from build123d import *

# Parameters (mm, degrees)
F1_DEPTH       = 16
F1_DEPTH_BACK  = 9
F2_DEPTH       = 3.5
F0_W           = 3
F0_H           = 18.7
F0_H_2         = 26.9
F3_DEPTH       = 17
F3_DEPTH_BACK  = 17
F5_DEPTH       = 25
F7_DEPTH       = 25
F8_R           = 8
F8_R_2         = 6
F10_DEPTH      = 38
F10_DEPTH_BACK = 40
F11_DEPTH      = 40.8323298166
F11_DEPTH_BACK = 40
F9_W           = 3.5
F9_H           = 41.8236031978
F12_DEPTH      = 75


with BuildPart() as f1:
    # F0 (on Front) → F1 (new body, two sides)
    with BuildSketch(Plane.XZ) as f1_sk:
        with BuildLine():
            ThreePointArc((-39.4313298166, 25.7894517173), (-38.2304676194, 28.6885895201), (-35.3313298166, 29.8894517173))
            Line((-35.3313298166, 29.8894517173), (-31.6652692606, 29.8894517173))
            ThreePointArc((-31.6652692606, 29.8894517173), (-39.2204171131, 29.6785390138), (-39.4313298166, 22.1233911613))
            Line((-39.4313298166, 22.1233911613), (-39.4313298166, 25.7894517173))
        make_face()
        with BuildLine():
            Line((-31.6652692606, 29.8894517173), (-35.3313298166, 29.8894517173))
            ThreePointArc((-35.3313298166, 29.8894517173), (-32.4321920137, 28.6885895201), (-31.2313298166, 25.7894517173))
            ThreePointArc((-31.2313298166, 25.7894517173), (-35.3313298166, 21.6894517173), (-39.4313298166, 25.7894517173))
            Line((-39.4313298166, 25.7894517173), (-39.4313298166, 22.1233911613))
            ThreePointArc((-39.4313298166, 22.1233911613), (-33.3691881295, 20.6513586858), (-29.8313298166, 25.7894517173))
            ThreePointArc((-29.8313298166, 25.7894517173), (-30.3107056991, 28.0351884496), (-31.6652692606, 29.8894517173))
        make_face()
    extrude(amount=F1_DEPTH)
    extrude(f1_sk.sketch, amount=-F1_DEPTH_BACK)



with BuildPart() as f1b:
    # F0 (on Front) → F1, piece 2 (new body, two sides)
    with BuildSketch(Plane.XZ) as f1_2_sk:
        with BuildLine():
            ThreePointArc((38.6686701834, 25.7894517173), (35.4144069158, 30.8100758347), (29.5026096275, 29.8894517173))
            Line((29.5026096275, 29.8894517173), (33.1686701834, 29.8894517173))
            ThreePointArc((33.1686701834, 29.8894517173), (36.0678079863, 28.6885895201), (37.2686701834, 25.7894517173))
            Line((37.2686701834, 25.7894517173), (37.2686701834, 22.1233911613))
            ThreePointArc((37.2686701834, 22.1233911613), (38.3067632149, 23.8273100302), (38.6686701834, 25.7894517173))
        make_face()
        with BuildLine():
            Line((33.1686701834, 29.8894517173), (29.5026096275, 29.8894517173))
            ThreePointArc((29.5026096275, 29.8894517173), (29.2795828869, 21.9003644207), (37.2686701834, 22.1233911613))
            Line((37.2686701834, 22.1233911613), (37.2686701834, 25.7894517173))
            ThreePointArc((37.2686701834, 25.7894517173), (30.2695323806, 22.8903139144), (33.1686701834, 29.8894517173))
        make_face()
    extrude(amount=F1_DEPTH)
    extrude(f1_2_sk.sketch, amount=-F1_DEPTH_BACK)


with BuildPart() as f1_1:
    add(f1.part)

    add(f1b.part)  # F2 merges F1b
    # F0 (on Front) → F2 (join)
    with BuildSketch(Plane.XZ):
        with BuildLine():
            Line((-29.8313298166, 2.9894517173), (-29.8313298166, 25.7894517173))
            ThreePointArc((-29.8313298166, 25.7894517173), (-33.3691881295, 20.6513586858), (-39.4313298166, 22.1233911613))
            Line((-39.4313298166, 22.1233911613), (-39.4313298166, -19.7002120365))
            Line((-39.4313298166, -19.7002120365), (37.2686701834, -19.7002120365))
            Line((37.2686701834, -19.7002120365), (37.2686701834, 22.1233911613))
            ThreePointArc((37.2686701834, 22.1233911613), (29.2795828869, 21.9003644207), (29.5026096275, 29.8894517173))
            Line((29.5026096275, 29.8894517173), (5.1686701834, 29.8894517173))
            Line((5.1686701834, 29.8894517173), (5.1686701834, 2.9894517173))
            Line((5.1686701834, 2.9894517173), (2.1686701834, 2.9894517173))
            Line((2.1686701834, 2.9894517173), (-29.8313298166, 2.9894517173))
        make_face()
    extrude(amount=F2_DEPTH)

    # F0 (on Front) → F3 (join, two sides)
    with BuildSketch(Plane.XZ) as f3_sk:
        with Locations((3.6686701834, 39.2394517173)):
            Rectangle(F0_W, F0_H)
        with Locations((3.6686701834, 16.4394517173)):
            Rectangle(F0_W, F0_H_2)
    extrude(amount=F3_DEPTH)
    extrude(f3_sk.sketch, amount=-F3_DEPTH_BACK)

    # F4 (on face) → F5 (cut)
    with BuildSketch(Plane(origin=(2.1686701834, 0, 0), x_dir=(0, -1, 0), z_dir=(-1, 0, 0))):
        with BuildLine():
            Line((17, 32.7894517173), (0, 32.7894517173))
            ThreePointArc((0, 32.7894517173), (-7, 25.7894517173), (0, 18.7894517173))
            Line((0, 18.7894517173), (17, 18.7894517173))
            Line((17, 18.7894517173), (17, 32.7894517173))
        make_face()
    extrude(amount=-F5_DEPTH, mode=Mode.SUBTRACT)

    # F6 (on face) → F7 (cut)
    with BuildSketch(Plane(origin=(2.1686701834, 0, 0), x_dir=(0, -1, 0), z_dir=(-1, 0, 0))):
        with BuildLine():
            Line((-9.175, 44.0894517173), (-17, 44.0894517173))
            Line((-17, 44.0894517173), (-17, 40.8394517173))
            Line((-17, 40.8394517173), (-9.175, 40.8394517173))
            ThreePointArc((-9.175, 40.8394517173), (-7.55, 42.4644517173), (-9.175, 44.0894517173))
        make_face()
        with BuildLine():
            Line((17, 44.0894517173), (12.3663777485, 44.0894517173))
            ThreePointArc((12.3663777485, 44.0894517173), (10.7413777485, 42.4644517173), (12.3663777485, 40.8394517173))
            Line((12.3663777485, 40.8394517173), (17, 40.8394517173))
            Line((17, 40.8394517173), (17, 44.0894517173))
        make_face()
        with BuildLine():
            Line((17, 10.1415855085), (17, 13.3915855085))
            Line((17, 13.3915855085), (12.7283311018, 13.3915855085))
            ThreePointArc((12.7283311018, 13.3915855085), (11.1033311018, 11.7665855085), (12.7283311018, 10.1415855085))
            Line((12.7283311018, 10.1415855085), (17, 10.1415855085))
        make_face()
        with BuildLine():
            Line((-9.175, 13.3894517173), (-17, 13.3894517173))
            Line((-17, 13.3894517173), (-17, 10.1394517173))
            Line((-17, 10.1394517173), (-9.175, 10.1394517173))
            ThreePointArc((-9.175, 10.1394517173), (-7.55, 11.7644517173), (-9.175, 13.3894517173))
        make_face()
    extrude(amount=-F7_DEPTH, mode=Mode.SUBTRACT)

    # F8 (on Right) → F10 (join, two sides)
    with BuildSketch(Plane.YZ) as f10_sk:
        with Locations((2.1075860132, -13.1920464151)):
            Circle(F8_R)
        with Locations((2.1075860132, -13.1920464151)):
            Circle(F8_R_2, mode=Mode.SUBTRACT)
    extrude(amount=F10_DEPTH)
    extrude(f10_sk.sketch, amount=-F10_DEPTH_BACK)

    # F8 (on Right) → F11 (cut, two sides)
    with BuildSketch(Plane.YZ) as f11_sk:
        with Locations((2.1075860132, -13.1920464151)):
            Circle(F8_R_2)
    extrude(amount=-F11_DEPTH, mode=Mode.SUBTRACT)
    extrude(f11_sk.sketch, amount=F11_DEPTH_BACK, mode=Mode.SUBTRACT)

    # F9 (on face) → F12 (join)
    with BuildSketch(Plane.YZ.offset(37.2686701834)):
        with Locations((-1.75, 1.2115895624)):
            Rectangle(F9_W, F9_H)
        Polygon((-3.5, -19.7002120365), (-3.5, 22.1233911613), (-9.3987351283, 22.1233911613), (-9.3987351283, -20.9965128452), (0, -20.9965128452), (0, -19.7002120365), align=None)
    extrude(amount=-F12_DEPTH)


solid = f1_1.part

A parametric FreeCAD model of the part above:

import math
import FreeCAD as App
import Part
import Sketcher

V = App.Vector
Q = App.Units.Quantity

doc = App.newDocument("Part")
body = doc.addObject("PartDesign::Body", "Body")

# Sketch on XZ plane
sketch1 = doc.addObject("Sketcher::SketchObject", "Sketch")
body.addObject(sketch1)
sketch1.AttachmentSupport = (doc.XZ_Plane, [""])
sketch1.MapMode = "FlatFace"
sketch1.addGeometry([
    Part.ArcOfCircle(Part.Circle(V(-35.3, 25.8, 0), V(0, 0, 1), 5.5), math.radians(48), math.radians(222)),  # 0
    Part.ArcOfCircle(Part.Circle(V(-35.3, 25.8, 0), V(0, 0, 1), 5.5), math.radians(-138), math.radians(0)),  # 1
    Part.ArcOfCircle(Part.Circle(V(-35.3, 25.8, 0), V(0, 0, 1), 5.5), math.radians(0), math.radians(48)),  # 2
    Part.ArcOfCircle(Part.Circle(V(-35.3, 25.8, 0), V(0, 0, 1), 4.1), math.radians(90), math.radians(180)),  # 3
    Part.ArcOfCircle(Part.Circle(V(-35.3, 25.8, 0), V(0, 0, 1), 4.1), math.radians(0), math.radians(90)),  # 4
    Part.ArcOfCircle(Part.Circle(V(-35.3, 25.8, 0), V(0, 0, 1), 4.1), math.radians(180), math.radians(360)),  # 5
], False)
sketch1.addConstraint([
    Sketcher.Constraint("Tangent", 0, 2, 1, 1),
    Sketcher.Constraint("Tangent", 1, 2, 2, 1),
    Sketcher.Constraint("Tangent", 2, 2, 0, 1),
    Sketcher.Constraint("Tangent", 3, 1, 4, 2),
    Sketcher.Constraint("Tangent", 4, 1, 5, 2),
    Sketcher.Constraint("Tangent", 5, 1, 3, 2),
    Sketcher.Constraint("Coincident", 3, 3, 0, 3),
    Sketcher.Constraint("Horizontal", 5, 3, 1, 2),
    Sketcher.Constraint("Horizontal", 2, 2, 3, 1),
    Sketcher.Constraint("Horizontal", 1, 2, 4, 1),
    Sketcher.Constraint("Horizontal", 4, 1, 5, 1),
    Sketcher.Constraint("Vertical", 5, 3, 3, 1),
    Sketcher.Constraint("Vertical", 0, 2, 5, 1),
    Sketcher.Constraint("Radius", 0, Q("5.5 mm")),
    Sketcher.Constraint("Radius", 3, Q("4.1 mm")),
    Sketcher.Constraint("DistanceX", 0, 3, -1, 1, Q("35.33133 mm")),
    Sketcher.Constraint("DistanceY", -1, 1, 0, 3, Q("25.789452 mm")),
])
pad1 = doc.addObject("PartDesign::Pad", "Pad")
body.addObject(pad1)
pad1.Profile = sketch1
pad1.Type = "TwoLengths"
pad1.Length = 16
pad1.Length2 = 9
body2 = doc.addObject("PartDesign::Body", "Body001")

# Sketch on XZ plane
sketch2 = doc.addObject("Sketcher::SketchObject", "Sketch001")
body2.addObject(sketch2)
sketch2.AttachmentSupport = (doc.getObject("XZ_Plane001"), [""])
sketch2.MapMode = "FlatFace"
sketch2.addGeometry([
    Part.ArcOfCircle(Part.Circle(V(33.2, 25.8, 0), V(0, 0, 1), 5.5), math.radians(0), math.radians(132)),  # 0
    Part.ArcOfCircle(Part.Circle(V(33.2, 25.8, 0), V(0, 0, 1), 5.5), math.radians(132), math.radians(318)),  # 1
    Part.ArcOfCircle(Part.Circle(V(33.2, 25.8, 0), V(0, 0, 1), 5.5), math.radians(-42), math.radians(0)),  # 2
    Part.ArcOfCircle(Part.Circle(V(33.2, 25.8, 0), V(0, 0, 1), 4.1), math.radians(0), math.radians(90)),  # 3
    Part.ArcOfCircle(Part.Circle(V(33.2, 25.8, 0), V(0, 0, 1), 4.1), math.radians(90), math.radians(360)),  # 4
], False)
sketch2.addConstraint([
    Sketcher.Constraint("Tangent", 0, 2, 1, 1),
    Sketcher.Constraint("Tangent", 1, 2, 2, 1),
    Sketcher.Constraint("Tangent", 2, 2, 0, 1),
    Sketcher.Constraint("Tangent", 3, 1, 4, 2),
    Sketcher.Constraint("Coincident", 4, 1, 3, 2),
    Sketcher.Constraint("Coincident", 3, 3, 0, 3),
    Sketcher.Constraint("Horizontal", 4, 3, 2, 2),
    Sketcher.Constraint("Horizontal", 2, 2, 3, 1),
    Sketcher.Constraint("Horizontal", 0, 2, 4, 1),
    Sketcher.Constraint("Vertical", 1, 2, 3, 1),
    Sketcher.Constraint("Vertical", 3, 3, 4, 1),
    Sketcher.Constraint("Radius", 0, Q("5.5 mm")),
    Sketcher.Constraint("Radius", 3, Q("4.1 mm")),
    Sketcher.Constraint("DistanceX", -1, 1, 0, 3, Q("33.16867 mm")),
    Sketcher.Constraint("DistanceY", -1, 1, 0, 3, Q("25.789452 mm")),
])
pad2 = doc.addObject("PartDesign::Pad", "Pad001")
body2.addObject(pad2)
pad2.Profile = sketch2
pad2.Type = "TwoLengths"
pad2.Length = 16
pad2.Length2 = 9
body.AllowCompound = True
doc.recompute()

boolean = doc.addObject("PartDesign::Boolean", "Boolean")
body.addObject(boolean)
boolean.Type = "Fuse"
boolean.addObjects([body2])

# Sketch on XZ plane
sketch3 = doc.addObject("Sketcher::SketchObject", "Sketch002")
body.addObject(sketch3)
sketch3.AttachmentSupport = (doc.XZ_Plane, [""])
sketch3.MapMode = "FlatFace"
sketch3.addGeometry([
    Part.LineSegment(V(-30, 3, 0), V(-30, 26, 0)),  # 0
    Part.ArcOfCircle(Part.Circle(V(-35, 26, 0), V(0, 0, 1), 6), math.radians(-138), math.radians(0)),  # 1
    Part.LineSegment(V(-39, 22, 0), V(-39, -20, 0)),  # 2
    Part.LineSegment(V(-39, -20, 0), V(37, -20, 0)),  # 3
    Part.LineSegment(V(37, -20, 0), V(37, 22, 0)),  # 4
    Part.ArcOfCircle(Part.Circle(V(33, 26, 0), V(0, 0, 1), 6), math.radians(132), math.radians(318)),  # 5
    Part.LineSegment(V(30, 30, 0), V(5, 30, 0)),  # 6
    Part.LineSegment(V(5, 30, 0), V(5, 3, 0)),  # 7
    Part.LineSegment(V(5, 3, 0), V(-30, 3, 0)),  # 8
], False)
sketch3.addConstraint([
    Sketcher.Constraint("Tangent", 0, 2, 1, 2),
    Sketcher.Constraint("Coincident", 1, 1, 2, 1),
    Sketcher.Constraint("Coincident", 2, 2, 3, 1),
    Sketcher.Constraint("Coincident", 3, 2, 4, 1),
    Sketcher.Constraint("Coincident", 4, 2, 5, 2),
    Sketcher.Constraint("Coincident", 5, 1, 6, 1),
    Sketcher.Constraint("Coincident", 6, 2, 7, 1),
    Sketcher.Constraint("Coincident", 7, 2, 8, 1),
    Sketcher.Constraint("Coincident", 8, 2, 0, 1),
    Sketcher.Constraint("Vertical", 0),
    Sketcher.Constraint("Vertical", 2),
    Sketcher.Constraint("Horizontal", 3),
    Sketcher.Constraint("Vertical", 4),
    Sketcher.Constraint("Horizontal", 6),
    Sketcher.Constraint("Vertical", 7),
    Sketcher.Constraint("Horizontal", 8),
    Sketcher.Constraint("Equal", 1, 5),
    Sketcher.Constraint("Horizontal", 1, 3, 5, 3),
    Sketcher.Constraint("Horizontal", 1, 1, 4, 2),
    Sketcher.Constraint("Radius", 1, Q("5.5 mm")),
    Sketcher.Constraint("DistanceX", 8, 2, 8, 1, Q("35 mm")),
    Sketcher.Constraint("DistanceX", 3, 1, 3, 2, Q("76.7 mm")),
    Sketcher.Constraint("DistanceY", 0, 1, 0, 2, Q("22.8 mm")),
    Sketcher.Constraint("DistanceY", 7, 2, 7, 1, Q("26.9 mm")),
    Sketcher.Constraint("DistanceX", 0, 2, 5, 3, Q("63 mm")),
    Sketcher.Constraint("DistanceY", 2, 2, 2, 1, Q("41.823603 mm")),
    Sketcher.Constraint("DistanceX", 1, 3, -1, 1, Q("35.33133 mm")),
    Sketcher.Constraint("DistanceY", -1, 1, 1, 3, Q("25.789452 mm")),
])
pad3 = doc.addObject("PartDesign::Pad", "Pad002")
body.addObject(pad3)
pad3.Profile = sketch3
pad3.Length = 3.5

# Sketch on XZ plane
sketch4 = doc.addObject("Sketcher::SketchObject", "Sketch003")
body.addObject(sketch4)
sketch4.AttachmentSupport = (doc.XZ_Plane, [""])
sketch4.MapMode = "FlatFace"
sketch4.addGeometry([
    Part.LineSegment(V(2.2, 48.6, 0), V(2.2, 3, 0)),
    Part.LineSegment(V(2.2, 3, 0), V(5.2, 3, 0)),
    Part.LineSegment(V(5.2, 3, 0), V(5.2, 48.6, 0)),
    Part.LineSegment(V(5.2, 48.6, 0), V(2.2, 48.6, 0)),
], False)
sketch4.addConstraint([
    Sketcher.Constraint("Coincident", 0, 2, 1, 1),
    Sketcher.Constraint("Coincident", 1, 2, 2, 1),
    Sketcher.Constraint("Coincident", 2, 2, 3, 1),
    Sketcher.Constraint("Coincident", 3, 2, 0, 1),
    Sketcher.Constraint("Vertical", 0),
    Sketcher.Constraint("Horizontal", 1),
    Sketcher.Constraint("Vertical", 2),
    Sketcher.Constraint("Horizontal", 3),
    Sketcher.Constraint("DistanceX", 1, 1, 1, 2, Q("3 mm")),
    Sketcher.Constraint("DistanceY", 0, 2, 0, 1, Q("45.6 mm")),
    Sketcher.Constraint("DistanceX", -1, 1, 0, 2, Q("2.16867 mm")),
    Sketcher.Constraint("DistanceY", -1, 1, 0, 2, Q("2.989452 mm")),
])
pad4 = doc.addObject("PartDesign::Pad", "Pad003")
body.addObject(pad4)
pad4.Profile = sketch4
pad4.Type = "TwoLengths"
pad4.Length = 17
pad4.Length2 = 17

# Sketch on YZ plane
sketch5 = doc.addObject("Sketcher::SketchObject", "Sketch004")
body.addObject(sketch5)
sketch5.AttachmentSupport = (doc.YZ_Plane, [""])
sketch5.MapMode = "FlatFace"
sketch5.AttachmentOffset = App.Placement(V(0, 0, 2.16867), App.Rotation())
sketch5.addGeometry([
    Part.LineSegment(V(-17, 33, 0), V(0, 33, 0)),
    Part.ArcOfCircle(Part.Circle(V(0, 26, 0), V(0, 0, 1), 7), math.radians(-90), math.radians(90)),
    Part.LineSegment(V(0, 19, 0), V(-17, 19, 0)),
    Part.LineSegment(V(-17, 19, 0), V(-17, 33, 0)),
], False)
sketch5.addConstraint([
    Sketcher.Constraint("Tangent", 0, 2, 1, 2),
    Sketcher.Constraint("Tangent", 1, 1, 2, 1),
    Sketcher.Constraint("Coincident", 2, 2, 3, 1),
    Sketcher.Constraint("Coincident", 3, 2, 0, 1),
    Sketcher.Constraint("Horizontal", 0),
    Sketcher.Constraint("Horizontal", 2),
    Sketcher.Constraint("Vertical", 3),
    Sketcher.Constraint("PointOnObject", 1, 3, -2),
    Sketcher.Constraint("Radius", 1, Q("7 mm")),
    Sketcher.Constraint("DistanceX", 0, 1, 0, 2, Q("17 mm")),
    Sketcher.Constraint("DistanceY", -1, 1, 1, 3, Q("25.789452 mm")),
])
pocket1 = doc.addObject("PartDesign::Pocket", "Pocket")
body.addObject(pocket1)
pocket1.Profile = sketch5
pocket1.Length = 25
pocket1.Reversed = True

# Sketch on YZ plane
sketch6 = doc.addObject("Sketcher::SketchObject", "Sketch005")
body.addObject(sketch6)
sketch6.AttachmentSupport = (doc.YZ_Plane, [""])
sketch6.MapMode = "FlatFace"
sketch6.AttachmentOffset = App.Placement(V(0, 0, 2.16867), App.Rotation())
sketch6.addGeometry([
    Part.LineSegment(V(9.2, 44.1, 0), V(17, 44.1, 0)),  # 0
    Part.LineSegment(V(17, 44.1, 0), V(17, 40.8, 0)),  # 1
    Part.LineSegment(V(17, 40.8, 0), V(9.2, 40.8, 0)),  # 2
    Part.ArcOfCircle(Part.Circle(V(9.2, 42.5, 0), V(0, 0, 1), 1.6), math.radians(90), math.radians(270)),  # 3
    Part.LineSegment(V(-17, 44.1, 0), V(-12.4, 44.1, 0)),  # 4
    Part.ArcOfCircle(Part.Circle(V(-12.4, 42.5, 0), V(0, 0, 1), 1.6), math.radians(-90), math.radians(90)),  # 5
    Part.LineSegment(V(-12.4, 40.8, 0), V(-17, 40.8, 0)),  # 6
    Part.LineSegment(V(-17, 40.8, 0), V(-17, 44.1, 0)),  # 7
    Part.LineSegment(V(-17, 10.1, 0), V(-17, 13.4, 0)),  # 8
    Part.LineSegment(V(-17, 13.4, 0), V(-12.7, 13.4, 0)),  # 9
    Part.ArcOfCircle(Part.Circle(V(-12.7, 11.8, 0), V(0, 0, 1), 1.6), math.radians(-90), math.radians(90)),  # 10
    Part.LineSegment(V(-12.7, 10.1, 0), V(-17, 10.1, 0)),  # 11
    Part.LineSegment(V(9.2, 13.4, 0), V(17, 13.4, 0)),  # 12
    Part.LineSegment(V(17, 13.4, 0), V(17, 10.1, 0)),  # 13
    Part.LineSegment(V(17, 10.1, 0), V(9.2, 10.1, 0)),  # 14
    Part.ArcOfCircle(Part.Circle(V(9.2, 11.8, 0), V(0, 0, 1), 1.6), math.radians(90), math.radians(270)),  # 15
], False)
sketch6.addConstraint([
    Sketcher.Constraint("Coincident", 0, 2, 1, 1),
    Sketcher.Constraint("Coincident", 1, 2, 2, 1),
    Sketcher.Constraint("Tangent", 2, 2, 3, 2),
    Sketcher.Constraint("Tangent", 3, 1, 0, 1),
    Sketcher.Constraint("Tangent", 4, 2, 5, 2),
    Sketcher.Constraint("Tangent", 5, 1, 6, 1),
    Sketcher.Constraint("Coincident", 6, 2, 7, 1),
    Sketcher.Constraint("Coincident", 7, 2, 4, 1),
    Sketcher.Constraint("Coincident", 8, 2, 9, 1),
    Sketcher.Constraint("Tangent", 9, 2, 10, 2),
    Sketcher.Constraint("Tangent", 10, 1, 11, 1),
    Sketcher.Constraint("Coincident", 11, 2, 8, 1),
    Sketcher.Constraint("Coincident", 12, 2, 13, 1),
    Sketcher.Constraint("Coincident", 13, 2, 14, 1),
    Sketcher.Constraint("Tangent", 14, 2, 15, 2),
    Sketcher.Constraint("Tangent", 15, 1, 12, 1),
    Sketcher.Constraint("Horizontal", 0),
    Sketcher.Constraint("Vertical", 1),
    Sketcher.Constraint("Horizontal", 2),
    Sketcher.Constraint("Horizontal", 4),
    Sketcher.Constraint("Horizontal", 6),
    Sketcher.Constraint("Vertical", 7),
    Sketcher.Constraint("Vertical", 8),
    Sketcher.Constraint("Horizontal", 9),
    Sketcher.Constraint("Horizontal", 11),
    Sketcher.Constraint("Horizontal", 12),
    Sketcher.Constraint("Vertical", 13),
    Sketcher.Constraint("Horizontal", 14),
    Sketcher.Constraint("Equal", 3, 5),
    Sketcher.Constraint("Equal", 5, 10),
    Sketcher.Constraint("Equal", 10, 15),
    Sketcher.Constraint("Symmetric", 1, 2, 6, 2, -2),
    Sketcher.Constraint("Vertical", 3, 3, 15, 3),
    Sketcher.Constraint("Vertical", 7, 2, 8, 2),
    Sketcher.Constraint("Vertical", 1, 2, 12, 2),
    Sketcher.Constraint("DistanceX", -1, 1, 0, 2, Q("17 mm")),
    Sketcher.Constraint("Radius", 3, Q("1.625 mm")),
    Sketcher.Constraint("DistanceY", 15, 3, 3, 3, Q("30.7 mm")),
    Sketcher.Constraint("DistanceX", 0, 1, 0, 2, Q("7.825 mm")),
    Sketcher.Constraint("DistanceX", 9, 1, 9, 2, Q("4.271669 mm")),
    Sketcher.Constraint("DistanceX", 4, 1, 4, 2, Q("4.633622 mm")),
    Sketcher.Constraint("DistanceY", -1, 1, 3, 3, Q("42.464452 mm")),
    Sketcher.Constraint("DistanceY", -1, 1, 10, 3, Q("11.766586 mm")),
])
pocket2 = doc.addObject("PartDesign::Pocket", "Pocket001")
body.addObject(pocket2)
pocket2.Profile = sketch6
pocket2.Length = 25
pocket2.Reversed = True

# Sketch on YZ plane
sketch7 = doc.addObject("Sketcher::SketchObject", "Sketch006")
body.addObject(sketch7)
sketch7.AttachmentSupport = (doc.YZ_Plane, [""])
sketch7.MapMode = "FlatFace"
sketch7.addGeometry([
    Part.Circle(V(2, -13, 0), V(0, 0, 1), 8),
    Part.Circle(V(2, -13, 0), V(0, 0, 1), 6),
], False)
sketch7.addConstraint([
    Sketcher.Constraint("Coincident", 1, 3, 0, 3),
    Sketcher.Constraint("Diameter", 0, Q("16 mm")),
    Sketcher.Constraint("Diameter", 1, Q("12 mm")),
    Sketcher.Constraint("DistanceX", -1, 1, 0, 3, Q("2.107586 mm")),
    Sketcher.Constraint("DistanceY", 0, 3, -1, 1, Q("13.192046 mm")),
])
pad5 = doc.addObject("PartDesign::Pad", "Pad004")
body.addObject(pad5)
pad5.Profile = sketch7
pad5.Type = "TwoLengths"
pad5.Length = 38
pad5.Length2 = 40

# Sketch on YZ plane
sketch8 = doc.addObject("Sketcher::SketchObject", "Sketch007")
body.addObject(sketch8)
sketch8.AttachmentSupport = (doc.YZ_Plane, [""])
sketch8.MapMode = "FlatFace"
sketch8.addGeometry(Part.Circle(V(2, -13, 0), V(0, 0, 1), 6), False)
sketch8.addConstraint([
    Sketcher.Constraint("Diameter", 0, Q("12 mm")),
    Sketcher.Constraint("DistanceX", -1, 1, 0, 3, Q("2.107586 mm")),
    Sketcher.Constraint("DistanceY", 0, 3, -1, 1, Q("13.192046 mm")),
])
pocket3 = doc.addObject("PartDesign::Pocket", "Pocket002")
body.addObject(pocket3)
pocket3.Profile = sketch8
pocket3.Type = "ThroughAll"
pocket3.Midplane = True

# Sketch on YZ plane
sketch9 = doc.addObject("Sketcher::SketchObject", "Sketch008")
body.addObject(sketch9)
sketch9.AttachmentSupport = (doc.YZ_Plane, [""])
sketch9.MapMode = "FlatFace"
sketch9.AttachmentOffset = App.Placement(V(0, 0, 37.26867), App.Rotation())
sketch9.addGeometry([
    Part.LineSegment(V(0, 22, 0), V(-9, 22, 0)),
    Part.LineSegment(V(-9, 22, 0), V(-9, -21, 0)),
    Part.LineSegment(V(-9, -21, 0), V(0, -21, 0)),
    Part.LineSegment(V(0, -21, 0), V(0, 22, 0)),
], False)
sketch9.addConstraint([
    Sketcher.Constraint("Coincident", 0, 2, 1, 1),
    Sketcher.Constraint("Coincident", 1, 2, 2, 1),
    Sketcher.Constraint("Coincident", 2, 2, 3, 1),
    Sketcher.Constraint("Coincident", 3, 2, 0, 1),
    Sketcher.Constraint("Horizontal", 0),
    Sketcher.Constraint("Vertical", 1),
    Sketcher.Constraint("Horizontal", 2),
    Sketcher.Constraint("Vertical", 3),
    Sketcher.Constraint("PointOnObject", 2, 2, -2),
    Sketcher.Constraint("DistanceX", 0, 2, 0, 1, Q("9.398735 mm")),
    Sketcher.Constraint("DistanceY", 1, 2, 1, 1, Q("43.119904 mm")),
    Sketcher.Constraint("DistanceY", -1, 1, 0, 2, Q("22.123391 mm")),
])
pad6 = doc.addObject("PartDesign::Pad", "Pad005")
body.addObject(pad6)
pad6.Profile = sketch9
pad6.Length = 75
pad6.Reversed = True

doc.recompute()
